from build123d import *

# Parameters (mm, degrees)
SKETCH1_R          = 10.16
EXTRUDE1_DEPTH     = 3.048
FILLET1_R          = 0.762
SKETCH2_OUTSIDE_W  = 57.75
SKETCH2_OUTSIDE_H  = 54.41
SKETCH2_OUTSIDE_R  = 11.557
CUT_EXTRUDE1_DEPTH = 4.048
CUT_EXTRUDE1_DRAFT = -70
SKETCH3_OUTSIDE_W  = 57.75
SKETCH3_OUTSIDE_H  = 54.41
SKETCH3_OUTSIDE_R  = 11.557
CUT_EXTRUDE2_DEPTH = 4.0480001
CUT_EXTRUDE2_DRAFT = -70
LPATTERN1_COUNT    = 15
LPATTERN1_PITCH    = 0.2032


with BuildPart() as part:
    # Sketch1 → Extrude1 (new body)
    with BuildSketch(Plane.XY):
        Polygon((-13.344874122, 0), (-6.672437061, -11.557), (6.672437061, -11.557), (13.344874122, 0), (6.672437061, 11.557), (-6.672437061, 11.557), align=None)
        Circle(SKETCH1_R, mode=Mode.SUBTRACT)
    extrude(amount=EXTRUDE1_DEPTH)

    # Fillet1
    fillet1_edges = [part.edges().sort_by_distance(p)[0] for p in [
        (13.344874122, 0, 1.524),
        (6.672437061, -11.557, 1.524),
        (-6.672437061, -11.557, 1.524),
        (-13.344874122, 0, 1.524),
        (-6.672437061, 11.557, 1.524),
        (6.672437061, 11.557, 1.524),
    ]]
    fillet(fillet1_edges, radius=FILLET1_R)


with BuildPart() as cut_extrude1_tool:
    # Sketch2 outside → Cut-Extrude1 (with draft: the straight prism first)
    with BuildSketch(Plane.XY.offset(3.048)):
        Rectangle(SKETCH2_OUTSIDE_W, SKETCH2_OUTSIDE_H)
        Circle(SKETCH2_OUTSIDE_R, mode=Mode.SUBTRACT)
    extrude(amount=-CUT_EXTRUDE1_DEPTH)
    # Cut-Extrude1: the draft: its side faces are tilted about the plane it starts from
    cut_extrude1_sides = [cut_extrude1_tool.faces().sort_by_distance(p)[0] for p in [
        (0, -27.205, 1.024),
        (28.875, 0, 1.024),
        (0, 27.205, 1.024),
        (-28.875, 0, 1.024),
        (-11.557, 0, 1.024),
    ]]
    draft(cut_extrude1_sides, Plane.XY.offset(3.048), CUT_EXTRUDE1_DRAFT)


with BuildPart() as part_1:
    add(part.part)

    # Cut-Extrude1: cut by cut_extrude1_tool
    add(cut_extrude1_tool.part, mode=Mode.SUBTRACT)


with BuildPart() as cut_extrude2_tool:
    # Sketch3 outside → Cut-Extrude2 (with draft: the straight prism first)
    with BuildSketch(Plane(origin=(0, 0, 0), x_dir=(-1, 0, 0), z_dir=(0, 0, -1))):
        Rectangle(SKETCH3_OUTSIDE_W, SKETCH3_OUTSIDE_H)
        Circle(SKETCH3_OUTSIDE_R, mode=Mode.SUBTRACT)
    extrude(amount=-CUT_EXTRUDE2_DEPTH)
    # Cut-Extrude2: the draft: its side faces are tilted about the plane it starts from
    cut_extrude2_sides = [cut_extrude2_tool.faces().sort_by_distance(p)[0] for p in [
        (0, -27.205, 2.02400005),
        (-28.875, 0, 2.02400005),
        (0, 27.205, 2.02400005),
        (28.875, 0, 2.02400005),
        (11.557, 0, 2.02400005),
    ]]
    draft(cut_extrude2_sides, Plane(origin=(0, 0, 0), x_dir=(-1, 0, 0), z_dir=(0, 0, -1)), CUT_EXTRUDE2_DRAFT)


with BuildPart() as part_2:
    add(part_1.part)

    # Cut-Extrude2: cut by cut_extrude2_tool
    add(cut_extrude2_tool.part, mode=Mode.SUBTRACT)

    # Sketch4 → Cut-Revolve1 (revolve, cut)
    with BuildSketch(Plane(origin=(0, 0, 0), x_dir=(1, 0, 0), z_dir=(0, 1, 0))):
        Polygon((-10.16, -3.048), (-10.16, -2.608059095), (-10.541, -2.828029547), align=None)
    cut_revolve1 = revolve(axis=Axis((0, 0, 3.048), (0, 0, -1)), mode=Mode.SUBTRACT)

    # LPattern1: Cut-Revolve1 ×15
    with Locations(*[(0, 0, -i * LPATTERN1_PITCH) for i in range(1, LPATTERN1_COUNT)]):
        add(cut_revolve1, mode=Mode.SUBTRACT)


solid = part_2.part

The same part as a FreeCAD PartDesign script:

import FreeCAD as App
import Part
import Sketcher

V = App.Vector
Q = App.Units.Quantity


def edges_at(feature, points):
    """Names of the edges that pass closest to the given points."""
    edges = feature.Shape.Edges
    near = lambda p: min(range(len(edges)), key=lambda i: edges[i].distToShape(Part.Vertex(*p))[0])
    return sorted({f"Edge{near(p) + 1}" for p in points})


def faces_at(feature, points):
    """Names of the faces that lie closest to the given points."""
    faces = feature.Shape.Faces
    near = lambda p: min(range(len(faces)), key=lambda i: faces[i].distToShape(Part.Vertex(*p))[0])
    return sorted({f"Face{near(p) + 1}" for p in points})


def add_polygon(sketch, points):
    """Adds a closed chain of lines whose ends are joined by coincident constraints."""
    first, n = sketch.GeometryCount, len(points)
    for a, b in zip(points, points[1:] + points[:1]):
        sketch.addGeometry(Part.LineSegment(App.Vector(*a, 0), App.Vector(*b, 0)), False)
    for i in range(n):
        sketch.addConstraint(Sketcher.Constraint("Coincident", first + i, 2, first + (i + 1) % n, 1))

doc = App.newDocument("Part")
params = doc.addObject("Spreadsheet::Sheet", "Params")
for row, (alias, value) in enumerate([
    ("sketch1_diameter", "0.8 in"),
    ("pad1_length", "0.12 in"),
    ("fillet_radius", "0.03 in"),
    ("sketch2_diameter", "0.91 in"),
    ("pad2_length", "4.048 mm"),
    ("draft_angle", "70 deg"),
    ("sketch3_diameter", "0.91 in"),
    ("pad3_length", "4.048 mm"),
    ("draft2_angle", "70 deg"),
    ("groove_angle", "360 deg"),
    ("linearpattern_pitch", "0.008 in"),
], start=1):
    params.set(f"A{row}", alias)
    params.set(f"B{row}", "=" + value)
    params.setAlias(f"B{row}", alias)

body = doc.addObject("PartDesign::Body", "Body")

# Sketch on XY plane
sketch1 = body.newObject("Sketcher::SketchObject", "Sketch")
sketch1.AttachmentSupport = (doc.getObject("XY_Plane"), [""])
sketch1.MapMode = "FlatFace"
add_polygon(sketch1, [(-13, 0), (-7, -12), (7, -12), (13, 0), (7, 12), (-7, 12)])  # lines 0-5
sketch1.addGeometry(Part.Circle(V(0, 0, 0), V(0, 0, 1), 10), False)  # 6
sketch1.addConstraint([
    Sketcher.Constraint("Horizontal", 1),
    Sketcher.Constraint("Horizontal", 4),
    Sketcher.Constraint("Coincident", 6, 3, -1, 1),
    Sketcher.Constraint("Symmetric", 0, 2, 3, 2, -1, 1),
    Sketcher.Constraint("Symmetric", 2, 2, 5, 2, -1, 1),
    Sketcher.Constraint("PointOnObject", 2, 2, -1),
    Sketcher.Constraint("Parallel", 2, 5),
    Sketcher.Constraint("Vertical", 1, 2, 3, 2),
    Sketcher.Constraint("Diameter", 6, Q("0.8 in")),
    Sketcher.Constraint("Angle", 0, Q("-60 deg")),
    Sketcher.Constraint("DistanceY", 1, 2, 3, 2, Q("0.91 in")),
    Sketcher.Constraint("DistanceX", 1, 1, 1, 2, Q("13.344874 mm")),
])
sketch1.setExpression("Constraints[14]", "Params.sketch1_diameter")
pad1 = body.newObject("PartDesign::Pad", "Pad")
pad1.Profile = sketch1
pad1.setExpression("Length", "Params.pad1_length")
doc.recompute()

fillet = body.newObject("PartDesign::Fillet", "Fillet")
fillet.Base = (pad1, edges_at(pad1, [
    (13.345, 0, 1.524),
    (6.672, -11.557, 1.524),
    (-6.672, -11.557, 1.524),
    (-13.345, 0, 1.524),
    (-6.672, 11.557, 1.524),
    (6.672, 11.557, 1.524),
]))
fillet.setExpression("Radius", "Params.fillet_radius")
body2 = doc.addObject("PartDesign::Body", "Body001")

# Sketch on XY plane
sketch2 = body2.newObject("Sketcher::SketchObject", "Sketch001")
sketch2.AttachmentSupport = (doc.getObject("XY_Plane001"), [""])
sketch2.MapMode = "FlatFace"
sketch2.AttachmentOffset = App.Placement(V(0, 0, 0.12 * 25.4), App.Rotation())
add_polygon(sketch2, [(-29, 27), (-29, -27), (29, -27), (29, 27)])  # lines 0-3
sketch2.addGeometry(Part.Circle(V(0, 0, 0), V(0, 0, 1), 12), False)  # 4
sketch2.addConstraint([
    Sketcher.Constraint("Vertical", 0),
    Sketcher.Constraint("Horizontal", 1),
    Sketcher.Constraint("Vertical", 2),
    Sketcher.Constraint("Horizontal", 3),
    Sketcher.Constraint("Coincident", 4, 3, -1, 1),
    Sketcher.Constraint("Symmetric", 0, 2, 2, 2, -1, 1),
    Sketcher.Constraint("Diameter", 4, Q("0.91 in")),
    Sketcher.Constraint("DistanceX", 1, 1, 1, 2, Q("57.75 mm")),
    Sketcher.Constraint("DistanceY", 0, 2, 0, 1, Q("54.41 mm")),
])
sketch2.setExpression("Constraints[10]", "Params.sketch2_diameter")
pad2 = body2.newObject("PartDesign::Pad", "Pad001")
pad2.Profile = sketch2
pad2.setExpression("Length", "Params.pad2_length")
pad2.Reversed = True
doc.recompute()

datumplane = body2.newObject("PartDesign::Plane", "DatumPlane")
datumplane.AttachmentSupport = (doc.getObject("XY_Plane001"), [""])
datumplane.MapMode = "FlatFace"
datumplane.AttachmentOffset = App.Placement(V(0, 0, 0.12 * 25.4), App.Rotation())
draft = body2.newObject("PartDesign::Draft", "Draft")
draft.Base = (pad2, faces_at(pad2, [
    (0, -27.205, 1.024),
    (28.875, 0, 1.024),
    (0, 27.205, 1.024),
    (-28.875, 0, 1.024),
    (-11.557, 0, 1.024),
]))
draft.NeutralPlane = (datumplane, [""])
draft.setExpression("Angle", "Params.draft_angle")
draft.Reversed = True
doc.recompute()

boolean = body.newObject("PartDesign::Boolean", "Boolean")
boolean.Type = "Cut"
boolean.addObjects([body2])
body3 = doc.addObject("PartDesign::Body", "Body002")

# Sketch on XY plane
sketch3 = body3.newObject("Sketcher::SketchObject", "Sketch002")
sketch3.AttachmentSupport = (doc.getObject("XY_Plane002"), [""])
sketch3.MapMode = "FlatFace"
add_polygon(sketch3, [(29, 27), (29, -27), (-29, -27), (-29, 27)])  # lines 0-3
sketch3.addGeometry(Part.Circle(V(0, 0, 0), V(0, 0, 1), 12), False)  # 4
sketch3.addConstraint([
    Sketcher.Constraint("Vertical", 0),
    Sketcher.Constraint("Horizontal", 1),
    Sketcher.Constraint("Vertical", 2),
    Sketcher.Constraint("Horizontal", 3),
    Sketcher.Constraint("Coincident", 4, 3, -1, 1),
    Sketcher.Constraint("Symmetric", 0, 2, 2, 2, -1, 1),
    Sketcher.Constraint("Diameter", 4, Q("0.91 in")),
    Sketcher.Constraint("DistanceX", 1, 2, 1, 1, Q("57.75 mm")),
    Sketcher.Constraint("DistanceY", 0, 2, 0, 1, Q("54.41 mm")),
])
sketch3.setExpression("Constraints[10]", "Params.sketch3_diameter")
pad3 = body3.newObject("PartDesign::Pad", "Pad002")
pad3.Profile = sketch3
pad3.setExpression("Length", "Params.pad3_length")
doc.recompute()

draft2 = body3.newObject("PartDesign::Draft", "Draft001")
draft2.Base = (pad3, faces_at(pad3, [
    (0, -27.205, 2.024),
    (-28.875, 0, 2.024),
    (0, 27.205, 2.024),
    (28.875, 0, 2.024),
    (11.557, 0, 2.024),
]))
draft2.NeutralPlane = (doc.getObject("XY_Plane002"), [""])
draft2.setExpression("Angle", "Params.draft2_angle")
draft2.Reversed = False
doc.recompute()

boolean2 = body.newObject("PartDesign::Boolean", "Boolean001")
boolean2.Type = "Cut"
boolean2.addObjects([body3])

# Sketch on XZ plane
sketch4 = body.newObject("Sketcher::SketchObject", "Sketch003")
sketch4.AttachmentSupport = (doc.getObject("XZ_Plane"), [""])
sketch4.MapMode = "FlatFace"
add_polygon(sketch4, [(-10.16, 3.05), (-10.16, 2.61), (-10.54, 2.83)])  # lines 0-2
sketch4.addConstraint([
    Sketcher.Constraint("Vertical", 0),
    Sketcher.Constraint("Equal", 1, 2),
    Sketcher.Constraint("Angle", 1, Q("150 deg")),
    Sketcher.Constraint("DistanceX", 0, 2, -1, 1, Q("0.4 in")),
    Sketcher.Constraint("DistanceY", -1, 1, 2, 2, Q("0.12 in")),
    Sketcher.Constraint("DistanceX", 1, 2, -1, 1, Q("0.415 in")),
])
groove = body.newObject("PartDesign::Groove", "Groove")
groove.Profile = sketch4
groove.ReferenceAxis = (sketch4, ["V_Axis"])
groove.setExpression("Angle", "Params.groove_angle")
doc.recompute()

linearpattern = body.newObject("PartDesign::LinearPattern", "LinearPattern")
linearpattern.Originals = [groove]
linearpattern.Direction = (doc.getObject("Z_Axis"), [""])
linearpattern.Mode = "offset"
linearpattern.setExpression("Offset", "Params.linearpattern_pitch")
linearpattern.Occurrences = 15
linearpattern.Reversed = True
body.Tip = linearpattern

doc.recompute()
